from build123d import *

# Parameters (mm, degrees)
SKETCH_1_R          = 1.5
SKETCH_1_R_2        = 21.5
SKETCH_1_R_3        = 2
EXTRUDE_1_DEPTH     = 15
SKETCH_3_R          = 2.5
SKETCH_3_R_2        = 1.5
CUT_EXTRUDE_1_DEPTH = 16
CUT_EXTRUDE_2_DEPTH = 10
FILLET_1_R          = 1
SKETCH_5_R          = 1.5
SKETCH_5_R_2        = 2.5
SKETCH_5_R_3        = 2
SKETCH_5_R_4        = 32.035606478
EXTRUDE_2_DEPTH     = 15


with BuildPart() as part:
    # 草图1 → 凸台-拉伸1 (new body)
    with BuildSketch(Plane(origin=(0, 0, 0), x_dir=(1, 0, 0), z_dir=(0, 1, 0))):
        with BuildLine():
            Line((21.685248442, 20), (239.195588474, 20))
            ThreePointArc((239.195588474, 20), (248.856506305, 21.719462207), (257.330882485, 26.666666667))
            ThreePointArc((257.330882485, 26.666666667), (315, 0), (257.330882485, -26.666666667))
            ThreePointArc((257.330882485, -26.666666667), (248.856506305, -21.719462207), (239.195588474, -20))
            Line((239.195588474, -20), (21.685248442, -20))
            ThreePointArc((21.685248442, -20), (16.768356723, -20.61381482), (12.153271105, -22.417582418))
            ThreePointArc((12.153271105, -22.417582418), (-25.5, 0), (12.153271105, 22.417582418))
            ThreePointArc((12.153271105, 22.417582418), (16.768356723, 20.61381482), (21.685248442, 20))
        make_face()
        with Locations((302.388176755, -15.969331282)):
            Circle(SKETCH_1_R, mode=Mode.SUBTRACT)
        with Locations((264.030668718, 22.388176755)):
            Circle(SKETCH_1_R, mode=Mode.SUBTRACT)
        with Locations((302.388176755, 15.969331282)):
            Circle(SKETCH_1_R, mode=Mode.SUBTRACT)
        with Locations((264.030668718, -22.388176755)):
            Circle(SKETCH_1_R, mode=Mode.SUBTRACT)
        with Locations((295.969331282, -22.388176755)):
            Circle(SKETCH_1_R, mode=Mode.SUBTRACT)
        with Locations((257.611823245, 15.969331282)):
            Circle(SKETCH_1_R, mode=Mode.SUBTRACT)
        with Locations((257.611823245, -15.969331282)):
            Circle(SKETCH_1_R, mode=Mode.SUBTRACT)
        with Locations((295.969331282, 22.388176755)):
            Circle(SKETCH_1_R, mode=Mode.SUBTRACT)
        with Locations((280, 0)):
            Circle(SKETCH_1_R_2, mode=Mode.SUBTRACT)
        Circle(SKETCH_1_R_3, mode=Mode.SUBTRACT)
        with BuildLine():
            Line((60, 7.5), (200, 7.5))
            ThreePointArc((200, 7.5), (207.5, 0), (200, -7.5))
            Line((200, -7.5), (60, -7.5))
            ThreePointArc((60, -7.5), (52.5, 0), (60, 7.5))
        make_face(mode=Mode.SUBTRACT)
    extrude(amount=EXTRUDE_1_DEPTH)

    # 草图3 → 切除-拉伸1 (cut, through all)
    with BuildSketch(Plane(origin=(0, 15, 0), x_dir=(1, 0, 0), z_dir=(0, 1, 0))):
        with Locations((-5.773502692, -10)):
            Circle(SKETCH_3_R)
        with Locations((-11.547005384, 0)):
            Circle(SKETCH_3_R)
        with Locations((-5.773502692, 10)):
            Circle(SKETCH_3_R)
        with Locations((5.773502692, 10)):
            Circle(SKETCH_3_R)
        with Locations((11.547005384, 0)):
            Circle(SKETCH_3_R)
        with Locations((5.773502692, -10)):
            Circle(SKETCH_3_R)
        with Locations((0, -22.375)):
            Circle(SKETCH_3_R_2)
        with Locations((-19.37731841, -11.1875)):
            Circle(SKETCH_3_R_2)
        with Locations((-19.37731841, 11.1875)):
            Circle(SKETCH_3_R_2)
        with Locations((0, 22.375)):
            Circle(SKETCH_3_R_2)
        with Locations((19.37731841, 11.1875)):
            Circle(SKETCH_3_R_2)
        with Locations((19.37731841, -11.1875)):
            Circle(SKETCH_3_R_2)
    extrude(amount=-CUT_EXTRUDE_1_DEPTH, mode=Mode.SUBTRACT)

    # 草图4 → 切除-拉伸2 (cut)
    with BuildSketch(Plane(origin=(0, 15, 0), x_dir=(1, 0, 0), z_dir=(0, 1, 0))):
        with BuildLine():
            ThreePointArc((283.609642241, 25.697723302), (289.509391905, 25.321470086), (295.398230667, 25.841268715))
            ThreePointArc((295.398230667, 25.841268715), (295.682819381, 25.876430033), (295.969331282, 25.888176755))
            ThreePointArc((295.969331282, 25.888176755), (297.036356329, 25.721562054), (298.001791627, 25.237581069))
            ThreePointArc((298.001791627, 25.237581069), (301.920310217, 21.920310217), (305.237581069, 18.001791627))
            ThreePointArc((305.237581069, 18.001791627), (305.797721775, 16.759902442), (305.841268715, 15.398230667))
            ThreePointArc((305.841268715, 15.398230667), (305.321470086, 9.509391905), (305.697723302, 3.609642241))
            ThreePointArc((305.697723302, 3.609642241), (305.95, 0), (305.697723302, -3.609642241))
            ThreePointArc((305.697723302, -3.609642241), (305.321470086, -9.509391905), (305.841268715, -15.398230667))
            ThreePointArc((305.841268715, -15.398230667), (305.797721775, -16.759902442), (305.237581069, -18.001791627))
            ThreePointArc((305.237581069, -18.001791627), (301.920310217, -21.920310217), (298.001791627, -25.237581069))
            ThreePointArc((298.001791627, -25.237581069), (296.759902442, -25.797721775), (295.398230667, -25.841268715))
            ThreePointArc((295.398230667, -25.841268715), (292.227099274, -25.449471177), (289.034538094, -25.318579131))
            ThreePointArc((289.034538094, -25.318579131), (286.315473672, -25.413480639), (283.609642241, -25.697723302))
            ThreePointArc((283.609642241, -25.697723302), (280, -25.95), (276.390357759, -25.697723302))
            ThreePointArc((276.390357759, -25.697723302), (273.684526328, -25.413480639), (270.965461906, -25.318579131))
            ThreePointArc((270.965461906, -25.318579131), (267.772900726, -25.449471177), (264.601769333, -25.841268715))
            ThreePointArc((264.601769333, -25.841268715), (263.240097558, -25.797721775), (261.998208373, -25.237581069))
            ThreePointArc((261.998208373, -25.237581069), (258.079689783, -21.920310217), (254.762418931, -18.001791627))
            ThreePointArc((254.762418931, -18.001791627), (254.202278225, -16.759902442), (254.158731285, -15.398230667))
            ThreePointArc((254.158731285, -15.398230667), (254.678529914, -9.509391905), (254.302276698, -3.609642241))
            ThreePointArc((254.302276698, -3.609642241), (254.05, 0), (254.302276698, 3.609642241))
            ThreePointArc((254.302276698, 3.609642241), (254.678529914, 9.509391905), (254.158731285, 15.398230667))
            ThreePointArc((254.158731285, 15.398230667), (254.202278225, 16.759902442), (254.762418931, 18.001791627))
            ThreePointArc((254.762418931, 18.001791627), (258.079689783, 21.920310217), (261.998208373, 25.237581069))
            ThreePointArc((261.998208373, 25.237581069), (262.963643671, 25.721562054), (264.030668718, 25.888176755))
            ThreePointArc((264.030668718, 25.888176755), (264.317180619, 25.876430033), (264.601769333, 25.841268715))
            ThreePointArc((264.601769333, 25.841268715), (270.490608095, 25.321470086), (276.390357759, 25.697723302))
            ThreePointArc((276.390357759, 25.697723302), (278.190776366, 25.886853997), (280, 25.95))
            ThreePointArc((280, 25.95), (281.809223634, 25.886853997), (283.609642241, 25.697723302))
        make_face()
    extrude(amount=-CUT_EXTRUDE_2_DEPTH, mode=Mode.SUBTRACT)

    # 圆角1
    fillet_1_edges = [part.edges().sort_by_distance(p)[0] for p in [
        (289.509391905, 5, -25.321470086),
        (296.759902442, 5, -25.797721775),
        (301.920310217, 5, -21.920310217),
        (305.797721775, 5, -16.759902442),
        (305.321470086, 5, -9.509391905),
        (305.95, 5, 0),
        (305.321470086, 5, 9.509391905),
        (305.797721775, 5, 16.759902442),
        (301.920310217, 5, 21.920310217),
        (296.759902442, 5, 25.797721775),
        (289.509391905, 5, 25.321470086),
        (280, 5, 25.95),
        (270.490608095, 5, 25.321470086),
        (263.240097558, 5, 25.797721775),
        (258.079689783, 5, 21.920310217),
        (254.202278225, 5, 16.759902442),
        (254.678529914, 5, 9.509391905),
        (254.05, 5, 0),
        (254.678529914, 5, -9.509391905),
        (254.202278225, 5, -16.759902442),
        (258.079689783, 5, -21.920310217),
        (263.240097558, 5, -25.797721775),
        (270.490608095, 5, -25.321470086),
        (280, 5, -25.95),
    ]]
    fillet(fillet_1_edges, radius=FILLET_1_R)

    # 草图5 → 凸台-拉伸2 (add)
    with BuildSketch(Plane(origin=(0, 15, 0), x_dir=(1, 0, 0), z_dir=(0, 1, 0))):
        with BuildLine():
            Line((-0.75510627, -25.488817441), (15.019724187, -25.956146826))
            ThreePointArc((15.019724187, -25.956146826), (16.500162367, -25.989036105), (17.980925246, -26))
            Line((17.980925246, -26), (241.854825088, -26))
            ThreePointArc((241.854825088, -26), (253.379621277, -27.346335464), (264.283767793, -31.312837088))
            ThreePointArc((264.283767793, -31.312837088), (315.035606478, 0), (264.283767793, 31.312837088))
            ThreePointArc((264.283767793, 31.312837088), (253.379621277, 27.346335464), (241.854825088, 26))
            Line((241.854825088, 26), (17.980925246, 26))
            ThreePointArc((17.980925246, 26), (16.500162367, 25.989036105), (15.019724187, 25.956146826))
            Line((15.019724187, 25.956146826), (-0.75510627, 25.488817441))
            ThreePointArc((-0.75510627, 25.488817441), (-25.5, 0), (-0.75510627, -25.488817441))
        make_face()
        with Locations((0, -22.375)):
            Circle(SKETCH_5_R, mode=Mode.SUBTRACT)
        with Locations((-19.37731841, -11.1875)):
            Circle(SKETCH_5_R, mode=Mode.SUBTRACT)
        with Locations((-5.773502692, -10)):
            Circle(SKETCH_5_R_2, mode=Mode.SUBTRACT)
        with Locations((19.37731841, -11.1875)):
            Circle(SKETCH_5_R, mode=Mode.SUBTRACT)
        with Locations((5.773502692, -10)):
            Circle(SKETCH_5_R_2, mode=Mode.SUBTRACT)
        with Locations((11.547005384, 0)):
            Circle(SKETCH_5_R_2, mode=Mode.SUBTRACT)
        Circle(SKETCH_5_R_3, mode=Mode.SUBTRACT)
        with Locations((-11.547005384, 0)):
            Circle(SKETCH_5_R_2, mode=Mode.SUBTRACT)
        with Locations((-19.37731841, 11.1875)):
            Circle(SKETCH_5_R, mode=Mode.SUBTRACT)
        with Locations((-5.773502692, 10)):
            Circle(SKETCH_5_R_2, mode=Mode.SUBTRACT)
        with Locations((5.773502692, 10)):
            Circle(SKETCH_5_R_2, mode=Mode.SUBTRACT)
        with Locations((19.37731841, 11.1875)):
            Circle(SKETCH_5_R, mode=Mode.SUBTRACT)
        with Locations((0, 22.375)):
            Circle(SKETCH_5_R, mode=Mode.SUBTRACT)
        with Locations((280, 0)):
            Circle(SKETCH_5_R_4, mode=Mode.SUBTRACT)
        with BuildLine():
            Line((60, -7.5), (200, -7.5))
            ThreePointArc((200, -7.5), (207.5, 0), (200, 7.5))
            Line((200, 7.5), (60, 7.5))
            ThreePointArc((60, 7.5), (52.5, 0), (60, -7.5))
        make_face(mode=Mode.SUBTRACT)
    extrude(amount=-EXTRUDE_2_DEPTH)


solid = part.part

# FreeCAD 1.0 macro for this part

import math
import FreeCAD as App
import Part
import Sketcher

V = App.Vector


def edges_at(feature, points):
    """Names of the edges that pass closest to the given points."""
    edges = feature.Shape.Edges
    near = lambda p: min(range(len(edges)), key=lambda i: edges[i].distToShape(Part.Vertex(*p))[0])
    return sorted({f"Edge{near(p) + 1}" for p in points})

doc = App.newDocument("Part")
params = doc.addObject("Spreadsheet::Sheet", "Params")
for row, (alias, value) in enumerate([
    ("sketch1_diameter", "3 mm"),
    ("sketch1_diameter2", "43 mm"),
    ("sketch1_diameter3", "4 mm"),
    ("sketch1_radius", "20 mm"),
    ("sketch1_radius2", "28 mm"),
    ("pad1_length", "15 mm"),
    ("sketch2_diameter", "5 mm"),
    ("sketch2_diameter2", "3 mm"),
    ("sketch3_radius", "39 mm"),
    ("sketch3_radius2", "31 mm"),
    ("sketch3_radius3", "3.5 mm"),
    ("sketch3_radius4", "25.95 mm"),
    ("pocket2_length", "10 mm"),
    ("fillet_radius", "1 mm"),
    ("sketch4_diameter", "3 mm"),
    ("sketch4_diameter2", "5 mm"),
    ("sketch4_diameter3", "4 mm"),
    ("sketch4_radius", "50 mm"),
    ("sketch4_radius2", "25.5 mm"),
    ("pad2_length", "15 mm"),
], start=1):
    params.set(f"A{row}", alias)
    params.set(f"B{row}", "=" + value)
    params.setAlias(f"B{row}", alias)

body = doc.addObject("PartDesign::Body", "Body")

# Sketch on XZ plane
sketch1 = body.newObject("Sketcher::SketchObject", "Sketch")
sketch1.AttachmentSupport = (doc.getObject("XZ_Plane"), [""])
sketch1.MapMode = "FlatFace"
sketch1.addGeometry(Part.LineSegment(V(239.2, -20, 0), V(21.7, -20, 0)), False)
sketch1.addGeometry(Part.ArcOfCircle(Part.Circle(V(21.7, -40, 0), V(0, 0, 1), 20), math.radians(90), math.radians(118)), False)
sketch1.addGeometry(Part.ArcOfCircle(Part.Circle(V(0, 0, 0), V(0, 0, 1), 25.5), math.radians(62), math.radians(298)), False)
sketch1.addGeometry(Part.ArcOfCircle(Part.Circle(V(21.7, 40, 0), V(0, 0, 1), 20), math.radians(-118), math.radians(-90)), False)
sketch1.addGeometry(Part.LineSegment(V(21.7, 20, 0), V(239.2, 20, 0)), False)
sketch1.addGeometry(Part.ArcOfCircle(Part.Circle(V(239.2, 48, 0), V(0, 0, 1), 28), math.radians(-90), math.radians(-50)), False)
sketch1.addGeometry(Part.ArcOfCircle(Part.Circle(V(280, 0, 0), V(0, 0, 1), 35), math.radians(-130), math.radians(130)), False)
sketch1.addGeometry(Part.ArcOfCircle(Part.Circle(V(239.2, -48, 0), V(0, 0, 1), 28), math.radians(50), math.radians(90)), False)
sketch1.addGeometry(Part.Circle(V(296, 22.4, 0), V(0, 0, 1), 1.5), False)
sketch1.addGeometry(Part.Circle(V(264, 22.4, 0), V(0, 0, 1), 1.5), False)
sketch1.addGeometry(Part.Circle(V(302.4, 16, 0), V(0, 0, 1), 1.5), False)
sketch1.addGeometry(Part.Circle(V(257.6, 16, 0), V(0, 0, 1), 1.5), False)
sketch1.addGeometry(Part.Circle(V(280, 0, 0), V(0, 0, 1), 21.5), False)
sketch1.addGeometry(Part.LineSegment(V(60, -7.5, 0), V(200, -7.5, 0)), False)
sketch1.addGeometry(Part.ArcOfCircle(Part.Circle(V(200, 0, 0), V(0, 0, 1), 7.5), math.radians(-90), math.radians(90)), False)
sketch1.addGeometry(Part.LineSegment(V(200, 7.5, 0), V(60, 7.5, 0)), False)
sketch1.addGeometry(Part.ArcOfCircle(Part.Circle(V(60, 0, 0), V(0, 0, 1), 7.5), math.radians(90), math.radians(270)), False)
sketch1.addGeometry(Part.Circle(V(0, 0, 0), V(0, 0, 1), 2), False)
sketch1.addGeometry(Part.Circle(V(302.4, -16, 0), V(0, 0, 1), 1.5), False)
sketch1.addGeometry(Part.Circle(V(257.6, -16, 0), V(0, 0, 1), 1.5), False)
sketch1.addGeometry(Part.Circle(V(296, -22.4, 0), V(0, 0, 1), 1.5), False)
sketch1.addGeometry(Part.Circle(V(264, -22.4, 0), V(0, 0, 1), 1.5), False)
sketch1.addConstraint(Sketcher.Constraint("Tangent", 0, 2, 1, 1))
sketch1.addConstraint(Sketcher.Constraint("Tangent", 1, 2, 2, 2))
sketch1.addConstraint(Sketcher.Constraint("Tangent", 2, 1, 3, 1))
sketch1.addConstraint(Sketcher.Constraint("Tangent", 3, 2, 4, 1))
sketch1.addConstraint(Sketcher.Constraint("Tangent", 4, 2, 5, 1))
sketch1.addConstraint(Sketcher.Constraint("Tangent", 5, 2, 6, 2))
sketch1.addConstraint(Sketcher.Constraint("Tangent", 6, 1, 7, 1))
sketch1.addConstraint(Sketcher.Constraint("Tangent", 7, 2, 0, 1))
sketch1.addConstraint(Sketcher.Constraint("Tangent", 13, 2, 14, 1))
sketch1.addConstraint(Sketcher.Constraint("Tangent", 14, 2, 15, 1))
sketch1.addConstraint(Sketcher.Constraint("Tangent", 15, 2, 16, 1))
sketch1.addConstraint(Sketcher.Constraint("Tangent", 16, 2, 13, 1))
sketch1.addConstraint(Sketcher.Constraint("Horizontal", 0))
sketch1.addConstraint(Sketcher.Constraint("Horizontal", 4))
sketch1.addConstraint(Sketcher.Constraint("Horizontal", 13))
sketch1.addConstraint(Sketcher.Constraint("Horizontal", 15))
sketch1.addConstraint(Sketcher.Constraint("Coincident", 2, 3, -1, 1))
sketch1.addConstraint(Sketcher.Constraint("Coincident", 17, 3, -1, 1))
sketch1.addConstraint(Sketcher.Constraint("Coincident", 12, 3, 6, 3))
sketch1.addConstraint(Sketcher.Constraint("Equal", 1, 3))
sketch1.addConstraint(Sketcher.Constraint("Equal", 5, 7))
sketch1.addConstraint(Sketcher.Constraint("Equal", 8, 9))
sketch1.addConstraint(Sketcher.Constraint("Equal", 9, 10))
sketch1.addConstraint(Sketcher.Constraint("Equal", 10, 11))
sketch1.addConstraint(Sketcher.Constraint("Equal", 11, 18))
sketch1.addConstraint(Sketcher.Constraint("Equal", 18, 19))
sketch1.addConstraint(Sketcher.Constraint("Equal", 19, 20))
sketch1.addConstraint(Sketcher.Constraint("Equal", 20, 21))
sketch1.addConstraint(Sketcher.Constraint("Symmetric", 5, 3, 7, 3, -1))
sketch1.addConstraint(Sketcher.Constraint("Symmetric", 10, 3, 18, 3, -1))
sketch1.addConstraint(Sketcher.Constraint("Symmetric", 11, 3, 19, 3, -1))
sketch1.addConstraint(Sketcher.Constraint("Symmetric", 8, 3, 20, 3, -1))
sketch1.addConstraint(Sketcher.Constraint("Symmetric", 9, 3, 21, 3, -1))
sketch1.addConstraint(Sketcher.Constraint("PointOnObject", 14, 3, -1))
sketch1.addConstraint(Sketcher.Constraint("Horizontal", 8, 3, 9, 3))
sketch1.addConstraint(Sketcher.Constraint("Horizontal", 10, 3, 11, 3))
sketch1.addConstraint(Sketcher.Constraint("Diameter", 8, 3.0))
sketch1.addConstraint(Sketcher.Constraint("Diameter", 12, 43.0))
sketch1.addConstraint(Sketcher.Constraint("Diameter", 17, 4.0))
sketch1.addConstraint(Sketcher.Constraint("Radius", 1, 20.0))
sketch1.addConstraint(Sketcher.Constraint("Radius", 5, 28.0))
sketch1.addConstraint(Sketcher.Constraint("Radius", 6, 35.0))
sketch1.addConstraint(Sketcher.Constraint("Radius", 2, 25.5))
sketch1.addConstraint(Sketcher.Constraint("Radius", 14, 7.5))
sketch1.addConstraint(Sketcher.Constraint("DistanceX", 13, 1, 13, 2, 140.0))
sketch1.addConstraint(Sketcher.Constraint("DistanceY", 1, 3, -1, 1, 40.0))
sketch1.addConstraint(Sketcher.Constraint("DistanceX", -1, 1, 6, 3, 280.0))
sketch1.addConstraint(Sketcher.Constraint("DistanceX", -1, 1, 14, 3, 200.0))
sketch1.addConstraint(Sketcher.Constraint("DistanceX", -1, 1, 8, 3, 295.969331))
sketch1.addConstraint(Sketcher.Constraint("DistanceX", -1, 1, 9, 3, 264.030669))
sketch1.addConstraint(Sketcher.Constraint("DistanceY", -1, 1, 10, 3, 15.969331))
sketch1.addConstraint(Sketcher.Constraint("DistanceX", 9, 3, 10, 3, 38.357508))
sketch1.addConstraint(Sketcher.Constraint("DistanceX", 11, 3, 8, 3, 38.357508))
sketch1.addConstraint(Sketcher.Constraint("DistanceY", 18, 3, 8, 3, 38.357508))
sketch1.setExpression("Constraints[36]", "Params.sketch1_diameter")
sketch1.setExpression("Constraints[37]", "Params.sketch1_diameter2")
sketch1.setExpression("Constraints[38]", "Params.sketch1_diameter3")
sketch1.setExpression("Constraints[39]", "Params.sketch1_radius")
sketch1.setExpression("Constraints[40]", "Params.sketch1_radius2")
pad1 = body.newObject("PartDesign::Pad", "Pad")
pad1.Profile = sketch1
pad1.setExpression("Length", "Params.pad1_length")
pad1.Reversed = True

# Sketch on XZ plane
sketch2 = body.newObject("Sketcher::SketchObject", "Sketch001")
sketch2.AttachmentSupport = (doc.getObject("XZ_Plane"), [""])
sketch2.MapMode = "FlatFace"
sketch2.AttachmentOffset = App.Placement(V(0, 0, -15), App.Rotation())
sketch2.addGeometry(Part.Circle(V(-5.8, 10, 0), V(0, 0, 1), 2.5), False)
sketch2.addGeometry(Part.Circle(V(-11.5, 0, 0), V(0, 0, 1), 2.5), False)
sketch2.addGeometry(Part.Circle(V(-5.8, -10, 0), V(0, 0, 1), 2.5), False)
sketch2.addGeometry(Part.Circle(V(5.8, -10, 0), V(0, 0, 1), 2.5), False)
sketch2.addGeometry(Part.Circle(V(11.5, 0, 0), V(0, 0, 1), 2.5), False)
sketch2.addGeometry(Part.Circle(V(5.8, 10, 0), V(0, 0, 1), 2.5), False)
sketch2.addGeometry(Part.Circle(V(0, 22.4, 0), V(0, 0, 1), 1.5), False)
sketch2.addGeometry(Part.Circle(V(-19.4, 11.2, 0), V(0, 0, 1), 1.5), False)
sketch2.addGeometry(Part.Circle(V(-19.4, -11.2, 0), V(0, 0, 1), 1.5), False)
sketch2.addGeometry(Part.Circle(V(0, -22.4, 0), V(0, 0, 1), 1.5), False)
sketch2.addGeometry(Part.Circle(V(19.4, -11.2, 0), V(0, 0, 1), 1.5), False)
sketch2.addGeometry(Part.Circle(V(19.4, 11.2, 0), V(0, 0, 1), 1.5), False)
sketch2.addConstraint(Sketcher.Constraint("Equal", 0, 1))
sketch2.addConstraint(Sketcher.Constraint("Equal", 1, 2))
sketch2.addConstraint(Sketcher.Constraint("Equal", 2, 3))
sketch2.addConstraint(Sketcher.Constraint("Equal", 3, 4))
sketch2.addConstraint(Sketcher.Constraint("Equal", 4, 5))
sketch2.addConstraint(Sketcher.Constraint("Equal", 6, 7))
sketch2.addConstraint(Sketcher.Constraint("Equal", 7, 8))
sketch2.addConstraint(Sketcher.Constraint("Equal", 8, 9))
sketch2.addConstraint(Sketcher.Constraint("Equal", 9, 10))
sketch2.addConstraint(Sketcher.Constraint("Equal", 10, 11))
sketch2.addConstraint(Sketcher.Constraint("Symmetric", 0, 3, 3, 3, -1, 1))
sketch2.addConstraint(Sketcher.Constraint("Symmetric", 1, 3, 4, 3, -1, 1))
sketch2.addConstraint(Sketcher.Constraint("Symmetric", 2, 3, 5, 3, -1, 1))
sketch2.addConstraint(Sketcher.Constraint("Symmetric", 6, 3, 9, 3, -1, 1))
sketch2.addConstraint(Sketcher.Constraint("Symmetric", 7, 3, 10, 3, -1, 1))
sketch2.addConstraint(Sketcher.Constraint("Symmetric", 8, 3, 11, 3, -1, 1))
sketch2.addConstraint(Sketcher.Constraint("Symmetric", 2, 3, 3, 3, -2))
sketch2.addConstraint(Sketcher.Constraint("Symmetric", 8, 3, 10, 3, -2))
sketch2.addConstraint(Sketcher.Constraint("PointOnObject", 1, 3, -1))
sketch2.addConstraint(Sketcher.Constraint("PointOnObject", 6, 3, -2))
sketch2.addConstraint(Sketcher.Constraint("Diameter", 0, 5.0))
sketch2.addConstraint(Sketcher.Constraint("Diameter", 6, 3.0))
sketch2.addConstraint(Sketcher.Constraint("DistanceY", -1, 1, 0, 3, 10.0))
sketch2.addConstraint(Sketcher.Constraint("DistanceY", -1, 1, 6, 3, 22.375))
sketch2.addConstraint(Sketcher.Constraint("DistanceY", 8, 3, 7, 3, 22.375))
sketch2.addConstraint(Sketcher.Constraint("DistanceX", 7, 3, -1, 1, 19.377318))
sketch2.addConstraint(Sketcher.Constraint("DistanceX", 1, 3, 3, 3, 17.320508))
sketch2.addConstraint(Sketcher.Constraint("DistanceX", 1, 3, 4, 3, 23.094011))
sketch2.setExpression("Constraints[20]", "Params.sketch2_diameter")
sketch2.setExpression("Constraints[21]", "Params.sketch2_diameter2")
pocket1 = body.newObject("PartDesign::Pocket", "Pocket")
pocket1.Profile = sketch2
pocket1.Type = "ThroughAll"
pocket1.Reversed = True

# Sketch on XZ plane
sketch3 = body.newObject("Sketcher::SketchObject", "Sketch002")
sketch3.AttachmentSupport = (doc.getObject("XZ_Plane"), [""])
sketch3.MapMode = "FlatFace"
sketch3.AttachmentOffset = App.Placement(V(0, 0, -15), App.Rotation())
sketch3.addGeometry(Part.ArcOfCircle(Part.Circle(V(289, -64.3, 0), V(0, 0, 1), 39), math.radians(80.61), math.radians(98)), False)
sketch3.addGeometry(Part.ArcOfCircle(Part.Circle(V(280, 0, 0), V(0, 0, 1), 25.9), math.radians(-90), math.radians(-82)), False)
sketch3.addGeometry(Part.ArcOfCircle(Part.Circle(V(280, 0, 0), V(0, 0, 1), 25.9), math.radians(-98), math.radians(-90)), False)
sketch3.addGeometry(Part.ArcOfCircle(Part.Circle(V(271, -64.3, 0), V(0, 0, 1), 39), math.radians(82), math.radians(99.39)), False)
sketch3.addGeometry(Part.ArcOfCircle(Part.Circle(V(264, -22.4, 0), V(0, 0, 1), 3.5), math.radians(-90), math.radians(-80.61)), False)
sketch3.addGeometry(Part.ArcOfCircle(Part.Circle(V(264, -22.4, 0), V(0, 0, 1), 3.5), math.radians(-126), math.radians(-90)), False)
sketch3.addGeometry(Part.ArcOfCircle(Part.Circle(V(280, 0, 0), V(0, 0, 1), 31), math.radians(-144.5), math.radians(-125.5)), False)
sketch3.addGeometry(Part.ArcOfCircle(Part.Circle(V(257.6, -16, 0), V(0, 0, 1), 3.5), math.radians(171), math.radians(216)), False)
sketch3.addGeometry(Part.ArcOfCircle(Part.Circle(V(215.7, -9, 0), V(0, 0, 1), 39), math.radians(-9.39), math.radians(8)), False)
sketch3.addGeometry(Part.ArcOfCircle(Part.Circle(V(280, 0, 0), V(0, 0, 1), 26), math.radians(172), math.radians(188)), False)
sketch3.addGeometry(Part.ArcOfCircle(Part.Circle(V(215.7, 9, 0), V(0, 0, 1), 39), math.radians(-8), math.radians(9.39)), False)
sketch3.addGeometry(Part.ArcOfCircle(Part.Circle(V(257.6, 16, 0), V(0, 0, 1), 3.5), math.radians(144), math.radians(189)), False)
sketch3.addGeometry(Part.ArcOfCircle(Part.Circle(V(280, 0, 0), V(0, 0, 1), 31), math.radians(125.5), math.radians(144.5)), False)
sketch3.addGeometry(Part.ArcOfCircle(Part.Circle(V(264, 22.4, 0), V(0, 0, 1), 3.5), math.radians(81), math.radians(126)), False)
sketch3.addGeometry(Part.ArcOfCircle(Part.Circle(V(271, 64.3, 0), V(0, 0, 1), 39), math.radians(-99.39), math.radians(-90)), False)
sketch3.addGeometry(Part.ArcOfCircle(Part.Circle(V(271, 64.3, 0), V(0, 0, 1), 39), math.radians(-90), math.radians(-82)), False)
sketch3.addGeometry(Part.ArcOfCircle(Part.Circle(V(280, 0, 0), V(0, 0, 1), 26), math.radians(82), math.radians(98)), False)
sketch3.addGeometry(Part.ArcOfCircle(Part.Circle(V(289, 64.3, 0), V(0, 0, 1), 39), math.radians(-98), math.radians(-90)), False)
sketch3.addGeometry(Part.ArcOfCircle(Part.Circle(V(289, 64.3, 0), V(0, 0, 1), 39), math.radians(-90), math.radians(-80.61)), False)
sketch3.addGeometry(Part.ArcOfCircle(Part.Circle(V(296, 22.4, 0), V(0, 0, 1), 3.5), math.radians(54), math.radians(99)), False)
sketch3.addGeometry(Part.ArcOfCircle(Part.Circle(V(280, 0, 0), V(0, 0, 1), 31), math.radians(35.5), math.radians(54.5)), False)
sketch3.addGeometry(Part.ArcOfCircle(Part.Circle(V(302.4, 16, 0), V(0, 0, 1), 3.5), math.radians(-9), math.radians(36)), False)
sketch3.addGeometry(Part.ArcOfCircle(Part.Circle(V(344.3, 9, 0), V(0, 0, 1), 39), math.radians(170.61), math.radians(188)), False)
sketch3.addGeometry(Part.ArcOfCircle(Part.Circle(V(280, 0, 0), V(0, 0, 1), 26), math.radians(-8), math.radians(8)), False)
sketch3.addGeometry(Part.ArcOfCircle(Part.Circle(V(344.3, -9, 0), V(0, 0, 1), 39), math.radians(172), math.radians(189.39)), False)
sketch3.addGeometry(Part.ArcOfCircle(Part.Circle(V(302.4, -16, 0), V(0, 0, 1), 3.5), math.radians(-36), math.radians(9)), False)
sketch3.addGeometry(Part.ArcOfCircle(Part.Circle(V(280, 0, 0), V(0, 0, 1), 31), math.radians(-54.5), math.radians(-35.5)), False)
sketch3.addGeometry(Part.ArcOfCircle(Part.Circle(V(296, -22.4, 0), V(0, 0, 1), 3.5), math.radians(-90), math.radians(-54)), False)
sketch3.addGeometry(Part.ArcOfCircle(Part.Circle(V(296, -22.4, 0), V(0, 0, 1), 3.5), math.radians(-99.39), math.radians(-90)), False)
sketch3.addConstraint(Sketcher.Constraint("Tangent", 0, 2, 1, 2))
sketch3.addConstraint(Sketcher.Constraint("Tangent", 1, 1, 2, 2))
sketch3.addConstraint(Sketcher.Constraint("Tangent", 2, 1, 3, 1))
sketch3.addConstraint(Sketcher.Constraint("Tangent", 3, 2, 4, 2))
sketch3.addConstraint(Sketcher.Constraint("Tangent", 4, 1, 5, 2))
sketch3.addConstraint(Sketcher.Constraint("Tangent", 5, 1, 6, 2))
sketch3.addConstraint(Sketcher.Constraint("Tangent", 6, 1, 7, 2))
sketch3.addConstraint(Sketcher.Constraint("Tangent", 7, 1, 8, 1))
sketch3.addConstraint(Sketcher.Constraint("Tangent", 8, 2, 9, 2))
sketch3.addConstraint(Sketcher.Constraint("Tangent", 9, 1, 10, 1))
sketch3.addConstraint(Sketcher.Constraint("Tangent", 10, 2, 11, 2))
sketch3.addConstraint(Sketcher.Constraint("Tangent", 11, 1, 12, 2))
sketch3.addConstraint(Sketcher.Constraint("Tangent", 12, 1, 13, 2))
sketch3.addConstraint(Sketcher.Constraint("Tangent", 13, 1, 14, 1))
sketch3.addConstraint(Sketcher.Constraint("Tangent", 14, 2, 15, 1))
sketch3.addConstraint(Sketcher.Constraint("Tangent", 15, 2, 16, 2))
sketch3.addConstraint(Sketcher.Constraint("Tangent", 16, 1, 17, 1))
sketch3.addConstraint(Sketcher.Constraint("Tangent", 17, 2, 18, 1))
sketch3.addConstraint(Sketcher.Constraint("Tangent", 18, 2, 19, 2))
sketch3.addConstraint(Sketcher.Constraint("Tangent", 19, 1, 20, 2))
sketch3.addConstraint(Sketcher.Constraint("Tangent", 20, 1, 21, 2))
sketch3.addConstraint(Sketcher.Constraint("Tangent", 21, 1, 22, 1))
sketch3.addConstraint(Sketcher.Constraint("Tangent", 22, 2, 23, 2))
sketch3.addConstraint(Sketcher.Constraint("Tangent", 23, 1, 24, 1))
sketch3.addConstraint(Sketcher.Constraint("Tangent", 24, 2, 25, 2))
sketch3.addConstraint(Sketcher.Constraint("Tangent", 25, 1, 26, 2))
sketch3.addConstraint(Sketcher.Constraint("Tangent", 26, 1, 27, 2))
sketch3.addConstraint(Sketcher.Constraint("Tangent", 27, 1, 28, 2))
sketch3.addConstraint(Sketcher.Constraint("Tangent", 28, 1, 0, 1))
sketch3.addConstraint(Sketcher.Constraint("Coincident", 6, 3, 1, 3))
sketch3.addConstraint(Sketcher.Constraint("Coincident", 9, 3, 1, 3))
sketch3.addConstraint(Sketcher.Constraint("Coincident", 12, 3, 1, 3))
sketch3.addConstraint(Sketcher.Constraint("Coincident", 16, 3, 1, 3))
sketch3.addConstraint(Sketcher.Constraint("Coincident", 20, 3, 1, 3))
sketch3.addConstraint(Sketcher.Constraint("Coincident", 23, 3, 1, 3))
sketch3.addConstraint(Sketcher.Constraint("Coincident", 26, 3, 1, 3))
sketch3.addConstraint(Sketcher.Constraint("Equal", 1, 2))
sketch3.addConstraint(Sketcher.Constraint("Equal", 0, 3))
sketch3.addConstraint(Sketcher.Constraint("Equal", 4, 5))
sketch3.addConstraint(Sketcher.Constraint("Equal", 5, 7))
sketch3.addConstraint(Sketcher.Constraint("Equal", 3, 8))
sketch3.addConstraint(Sketcher.Constraint("Equal", 2, 9))
sketch3.addConstraint(Sketcher.Constraint("Equal", 8, 10))
sketch3.addConstraint(Sketcher.Constraint("Equal", 7, 11))
sketch3.addConstraint(Sketcher.Constraint("Equal", 6, 12))
sketch3.addConstraint(Sketcher.Constraint("Equal", 11, 13))
sketch3.addConstraint(Sketcher.Constraint("Equal", 10, 14))
sketch3.addConstraint(Sketcher.Constraint("Equal", 14, 15))
sketch3.addConstraint(Sketcher.Constraint("Equal", 9, 16))
sketch3.addConstraint(Sketcher.Constraint("Equal", 15, 17))
sketch3.addConstraint(Sketcher.Constraint("Equal", 17, 18))
sketch3.addConstraint(Sketcher.Constraint("Equal", 13, 19))
sketch3.addConstraint(Sketcher.Constraint("Equal", 12, 20))
sketch3.addConstraint(Sketcher.Constraint("Equal", 19, 21))
sketch3.addConstraint(Sketcher.Constraint("Equal", 18, 22))
sketch3.addConstraint(Sketcher.Constraint("Equal", 16, 23))
sketch3.addConstraint(Sketcher.Constraint("Equal", 22, 24))
sketch3.addConstraint(Sketcher.Constraint("Equal", 21, 25))
sketch3.addConstraint(Sketcher.Constraint("Equal", 20, 26))
sketch3.addConstraint(Sketcher.Constraint("Equal", 25, 27))
sketch3.addConstraint(Sketcher.Constraint("Equal", 27, 28))
sketch3.addConstraint(Sketcher.Constraint("Symmetric", 8, 3, 10, 3, -1))
sketch3.addConstraint(Sketcher.Constraint("Horizontal", 0, 3, 3, 3))
sketch3.addConstraint(Sketcher.Constraint("Horizontal", 15, 3, 17, 3))
sketch3.addConstraint(Sketcher.Constraint("Horizontal", 11, 3, 21, 3))
sketch3.addConstraint(Sketcher.Constraint("Horizontal", 8, 3, 24, 3))
sketch3.addConstraint(Sketcher.Constraint("Vertical", 5, 3, 13, 3))
sketch3.addConstraint(Sketcher.Constraint("Vertical", 26, 3, 1, 1))
sketch3.addConstraint(Sketcher.Constraint("Vertical", 13, 3, 4, 1))
sketch3.addConstraint(Sketcher.Constraint("Vertical", 15, 3, 14, 2))
sketch3.addConstraint(Sketcher.Constraint("Vertical", 18, 3, 17, 2))
sketch3.addConstraint(Sketcher.Constraint("Vertical", 28, 3, 27, 1))
sketch3.addConstraint(Sketcher.Constraint("Radius", 0, 39.0))
sketch3.addConstraint(Sketcher.Constraint("Radius", 6, 31.0))
sketch3.addConstraint(Sketcher.Constraint("Radius", 4, 3.5))
sketch3.addConstraint(Sketcher.Constraint("Radius", 1, 25.95))
sketch3.addConstraint(Sketcher.Constraint("DistanceX", -1, 1, 1, 3, 280.0))
sketch3.addConstraint(Sketcher.Constraint("DistanceY", 12, 1, 14, 2, 0.080998))
sketch3.addConstraint(Sketcher.Constraint("DistanceY", 7, 3, 7, 1, 0.571101))
sketch3.setExpression("Constraints[72]", "Params.sketch3_radius")
sketch3.setExpression("Constraints[73]", "Params.sketch3_radius2")
sketch3.setExpression("Constraints[74]", "Params.sketch3_radius3")
sketch3.setExpression("Constraints[75]", "Params.sketch3_radius4")
pocket2 = body.newObject("PartDesign::Pocket", "Pocket001")
pocket2.Profile = sketch3
pocket2.setExpression("Length", "Params.pocket2_length")
pocket2.Reversed = True
doc.recompute()

fillet = body.newObject("PartDesign::Fillet", "Fillet")
fillet.Base = (pocket2, edges_at(pocket2, [
    (289.509, 5, -25.321),
    (297.036, 5, -25.722),
    (301.92, 5, -21.92),
    (305.798, 5, -16.76),
    (305.321, 5, -9.509),
    (305.95, 5, 0),
    (305.321, 5, 9.509),
    (305.798, 5, 16.76),
    (301.92, 5, 21.92),
    (296.76, 5, 25.798),
    (292.227, 5, 25.449),
    (280, 5, 25.95),
    (267.773, 5, 25.449),
    (263.24, 5, 25.798),
    (258.08, 5, 21.92),
    (254.202, 5, 16.76),
    (254.679, 5, 9.509),
    (254.05, 5, 0),
    (254.679, 5, -9.509),
    (254.202, 5, -16.76),
    (258.08, 5, -21.92),
    (262.964, 5, -25.722),
    (270.491, 5, -25.321),
    (280, 10, -25.95),
]))
fillet.setExpression("Radius", "Params.fillet_radius")

# Sketch on XZ plane
sketch4 = body.newObject("Sketcher::SketchObject", "Sketch003")
sketch4.AttachmentSupport = (doc.getObject("XZ_Plane"), [""])
sketch4.MapMode = "FlatFace"
sketch4.AttachmentOffset = App.Placement(V(0, 0, -15), App.Rotation())
sketch4.addGeometry(Part.LineSegment(V(-0.8, 25.5, 0), V(15, 26, 0)), False)
sketch4.addGeometry(Part.ArcOfCircle(Part.Circle(V(18, -74, 0), V(0, 0, 1), 100), math.radians(90), math.radians(91.7)), False)
sketch4.addGeometry(Part.LineSegment(V(18, 26, 0), V(241.9, 26, 0)), False)
sketch4.addGeometry(Part.ArcOfCircle(Part.Circle(V(241.9, 76, 0), V(0, 0, 1), 50), math.radians(-90), math.radians(-63)), False)
sketch4.addGeometry(Part.ArcOfCircle(Part.Circle(V(280, 0, 0), V(0, 0, 1), 35), math.radians(-117), math.radians(117)), False)
sketch4.addGeometry(Part.ArcOfCircle(Part.Circle(V(241.9, -76, 0), V(0, 0, 1), 50), math.radians(63), math.radians(90)), False)
sketch4.addGeometry(Part.LineSegment(V(241.9, -26, 0), V(18, -26, 0)), False)
sketch4.addGeometry(Part.ArcOfCircle(Part.Circle(V(18, 74, 0), V(0, 0, 1), 100), math.radians(-91.7), math.radians(-90)), False)
sketch4.addGeometry(Part.LineSegment(V(15, -26, 0), V(-0.8, -25.5, 0)), False)
sketch4.addGeometry(Part.ArcOfCircle(Part.Circle(V(0, 0, 0), V(0, 0, 1), 25.5), math.radians(92), math.radians(268)), False)
sketch4.addGeometry(Part.Circle(V(0, 22.4, 0), V(0, 0, 1), 1.5), False)
sketch4.addGeometry(Part.Circle(V(-19.4, 11.2, 0), V(0, 0, 1), 1.5), False)
sketch4.addGeometry(Part.Circle(V(-5.8, 10, 0), V(0, 0, 1), 2.5), False)
sketch4.addGeometry(Part.Circle(V(19.4, 11.2, 0), V(0, 0, 1), 1.5), False)
sketch4.addGeometry(Part.Circle(V(5.8, 10, 0), V(0, 0, 1), 2.5), False)
sketch4.addGeometry(Part.Circle(V(-11.5, 0, 0), V(0, 0, 1), 2.5), False)
sketch4.addGeometry(Part.Circle(V(0, 0, 0), V(0, 0, 1), 2), False)
sketch4.addGeometry(Part.Circle(V(11.5, 0, 0), V(0, 0, 1), 2.5), False)
sketch4.addGeometry(Part.Circle(V(-5.8, -10, 0), V(0, 0, 1), 2.5), False)
sketch4.addGeometry(Part.Circle(V(-19.4, -11.2, 0), V(0, 0, 1), 1.5), False)
sketch4.addGeometry(Part.Circle(V(5.8, -10, 0), V(0, 0, 1), 2.5), False)
sketch4.addGeometry(Part.Circle(V(19.4, -11.2, 0), V(0, 0, 1), 1.5), False)
sketch4.addGeometry(Part.LineSegment(V(200, 7.5, 0), V(60, 7.5, 0)), False)
sketch4.addGeometry(Part.ArcOfCircle(Part.Circle(V(60, 0, 0), V(0, 0, 1), 7.5), math.radians(90), math.radians(270)), False)
sketch4.addGeometry(Part.LineSegment(V(60, -7.5, 0), V(200, -7.5, 0)), False)
sketch4.addGeometry(Part.ArcOfCircle(Part.Circle(V(200, 0, 0), V(0, 0, 1), 7.5), math.radians(-90), math.radians(90)), False)
sketch4.addGeometry(Part.Circle(V(0, -22.4, 0), V(0, 0, 1), 1.5), False)
sketch4.addGeometry(Part.Circle(V(280, 0, 0), V(0, 0, 1), 32), False)
sketch4.addConstraint(Sketcher.Constraint("Tangent", 0, 2, 1, 2))
sketch4.addConstraint(Sketcher.Constraint("Tangent", 1, 1, 2, 1))
sketch4.addConstraint(Sketcher.Constraint("Tangent", 2, 2, 3, 1))
sketch4.addConstraint(Sketcher.Constraint("Tangent", 3, 2, 4, 2))
sketch4.addConstraint(Sketcher.Constraint("Tangent", 4, 1, 5, 1))
sketch4.addConstraint(Sketcher.Constraint("Tangent", 5, 2, 6, 1))
sketch4.addConstraint(Sketcher.Constraint("Tangent", 6, 2, 7, 2))
sketch4.addConstraint(Sketcher.Constraint("Tangent", 7, 1, 8, 1))
sketch4.addConstraint(Sketcher.Constraint("Tangent", 8, 2, 9, 2))
sketch4.addConstraint(Sketcher.Constraint("Tangent", 9, 1, 0, 1))
sketch4.addConstraint(Sketcher.Constraint("Tangent", 22, 2, 23, 1))
sketch4.addConstraint(Sketcher.Constraint("Tangent", 23, 2, 24, 1))
sketch4.addConstraint(Sketcher.Constraint("Tangent", 24, 2, 25, 1))
sketch4.addConstraint(Sketcher.Constraint("Tangent", 25, 2, 22, 1))
sketch4.addConstraint(Sketcher.Constraint("Horizontal", 2))
sketch4.addConstraint(Sketcher.Constraint("Horizontal", 6))
sketch4.addConstraint(Sketcher.Constraint("Horizontal", 22))
sketch4.addConstraint(Sketcher.Constraint("Horizontal", 24))
sketch4.addConstraint(Sketcher.Constraint("Coincident", 9, 3, -1, 1))
sketch4.addConstraint(Sketcher.Constraint("Coincident", 16, 3, -1, 1))
sketch4.addConstraint(Sketcher.Constraint("Coincident", 27, 3, 4, 3))
sketch4.addConstraint(Sketcher.Constraint("Equal", 3, 5))
sketch4.addConstraint(Sketcher.Constraint("Equal", 1, 7))
sketch4.addConstraint(Sketcher.Constraint("Equal", 10, 11))
sketch4.addConstraint(Sketcher.Constraint("Equal", 11, 13))
sketch4.addConstraint(Sketcher.Constraint("Equal", 12, 14))
sketch4.addConstraint(Sketcher.Constraint("Equal", 14, 15))
sketch4.addConstraint(Sketcher.Constraint("Equal", 15, 17))
sketch4.addConstraint(Sketcher.Constraint("Equal", 17, 18))
sketch4.addConstraint(Sketcher.Constraint("Equal", 13, 19))
sketch4.addConstraint(Sketcher.Constraint("Equal", 18, 20))
sketch4.addConstraint(Sketcher.Constraint("Equal", 19, 21))
sketch4.addConstraint(Sketcher.Constraint("Equal", 21, 26))
sketch4.addConstraint(Sketcher.Constraint("Symmetric", 15, 3, 17, 3, -1, 1))
sketch4.addConstraint(Sketcher.Constraint("Symmetric", 14, 3, 18, 3, -1, 1))
sketch4.addConstraint(Sketcher.Constraint("Symmetric", 13, 3, 19, 3, -1, 1))
sketch4.addConstraint(Sketcher.Constraint("Symmetric", 12, 3, 20, 3, -1, 1))
sketch4.addConstraint(Sketcher.Constraint("Symmetric", 11, 3, 21, 3, -1, 1))
sketch4.addConstraint(Sketcher.Constraint("Symmetric", 10, 3, 26, 3, -1, 1))
sketch4.addConstraint(Sketcher.Constraint("Symmetric", 11, 3, 13, 3, -2))
sketch4.addConstraint(Sketcher.Constraint("Symmetric", 12, 3, 14, 3, -2))
sketch4.addConstraint(Sketcher.Constraint("Symmetric", 3, 3, 5, 3, -1))
sketch4.addConstraint(Sketcher.Constraint("PointOnObject", 10, 3, -2))
sketch4.addConstraint(Sketcher.Constraint("PointOnObject", 15, 3, -1))
sketch4.addConstraint(Sketcher.Constraint("PointOnObject", 23, 3, -1))
sketch4.addConstraint(Sketcher.Constraint("Vertical", 1, 3, 7, 3))
sketch4.addConstraint(Sketcher.Constraint("Diameter", 10, 3.0))
sketch4.addConstraint(Sketcher.Constraint("Diameter", 12, 5.0))
sketch4.addConstraint(Sketcher.Constraint("Diameter", 16, 4.0))
sketch4.addConstraint(Sketcher.Constraint("Radius", 3, 50.0))
sketch4.addConstraint(Sketcher.Constraint("Radius", 9, 25.5))
sketch4.addConstraint(Sketcher.Constraint("Radius", 23, 7.5))
sketch4.addConstraint(Sketcher.Constraint("DistanceX", 22, 2, 22, 1, 140.0))
sketch4.addConstraint(Sketcher.Constraint("DistanceY", -1, 1, 3, 3, 76.0))
sketch4.addConstraint(Sketcher.Constraint("DistanceX", -1, 1, 4, 3, 280.0))
sketch4.addConstraint(Sketcher.Constraint("DistanceY", -1, 1, 12, 3, 10.0))
sketch4.addConstraint(Sketcher.Constraint("DistanceX", -1, 1, 23, 3, 60.0))
sketch4.addConstraint(Sketcher.Constraint("Diameter", 27, 64.071213))
sketch4.addConstraint(Sketcher.Constraint("DistanceX", 2, 1, 2, 2, 223.8739))
sketch4.addConstraint(Sketcher.Constraint("DistanceY", -1, 1, 10, 3, 22.375))
sketch4.addConstraint(Sketcher.Constraint("Radius", 1, 100.000004))
sketch4.addConstraint(Sketcher.Constraint("Radius", 4, 35.035606))
sketch4.addConstraint(Sketcher.Constraint("DistanceY", 19, 3, 11, 3, 22.375))
sketch4.addConstraint(Sketcher.Constraint("DistanceX", 11, 3, -1, 1, 19.377318))
sketch4.addConstraint(Sketcher.Constraint("DistanceX", 12, 3, 7, 3, 23.754428))
sketch4.addConstraint(Sketcher.Constraint("DistanceX", 15, 3, 14, 3, 17.320508))
sketch4.setExpression("Constraints[46]", "Params.sketch4_diameter")
sketch4.setExpression("Constraints[47]", "Params.sketch4_diameter2")
sketch4.setExpression("Constraints[48]", "Params.sketch4_diameter3")
sketch4.setExpression("Constraints[49]", "Params.sketch4_radius")
sketch4.setExpression("Constraints[50]", "Params.sketch4_radius2")
pad2 = body.newObject("PartDesign::Pad", "Pad001")
pad2.Profile = sketch4
pad2.setExpression("Length", "Params.pad2_length")

doc.recompute()
